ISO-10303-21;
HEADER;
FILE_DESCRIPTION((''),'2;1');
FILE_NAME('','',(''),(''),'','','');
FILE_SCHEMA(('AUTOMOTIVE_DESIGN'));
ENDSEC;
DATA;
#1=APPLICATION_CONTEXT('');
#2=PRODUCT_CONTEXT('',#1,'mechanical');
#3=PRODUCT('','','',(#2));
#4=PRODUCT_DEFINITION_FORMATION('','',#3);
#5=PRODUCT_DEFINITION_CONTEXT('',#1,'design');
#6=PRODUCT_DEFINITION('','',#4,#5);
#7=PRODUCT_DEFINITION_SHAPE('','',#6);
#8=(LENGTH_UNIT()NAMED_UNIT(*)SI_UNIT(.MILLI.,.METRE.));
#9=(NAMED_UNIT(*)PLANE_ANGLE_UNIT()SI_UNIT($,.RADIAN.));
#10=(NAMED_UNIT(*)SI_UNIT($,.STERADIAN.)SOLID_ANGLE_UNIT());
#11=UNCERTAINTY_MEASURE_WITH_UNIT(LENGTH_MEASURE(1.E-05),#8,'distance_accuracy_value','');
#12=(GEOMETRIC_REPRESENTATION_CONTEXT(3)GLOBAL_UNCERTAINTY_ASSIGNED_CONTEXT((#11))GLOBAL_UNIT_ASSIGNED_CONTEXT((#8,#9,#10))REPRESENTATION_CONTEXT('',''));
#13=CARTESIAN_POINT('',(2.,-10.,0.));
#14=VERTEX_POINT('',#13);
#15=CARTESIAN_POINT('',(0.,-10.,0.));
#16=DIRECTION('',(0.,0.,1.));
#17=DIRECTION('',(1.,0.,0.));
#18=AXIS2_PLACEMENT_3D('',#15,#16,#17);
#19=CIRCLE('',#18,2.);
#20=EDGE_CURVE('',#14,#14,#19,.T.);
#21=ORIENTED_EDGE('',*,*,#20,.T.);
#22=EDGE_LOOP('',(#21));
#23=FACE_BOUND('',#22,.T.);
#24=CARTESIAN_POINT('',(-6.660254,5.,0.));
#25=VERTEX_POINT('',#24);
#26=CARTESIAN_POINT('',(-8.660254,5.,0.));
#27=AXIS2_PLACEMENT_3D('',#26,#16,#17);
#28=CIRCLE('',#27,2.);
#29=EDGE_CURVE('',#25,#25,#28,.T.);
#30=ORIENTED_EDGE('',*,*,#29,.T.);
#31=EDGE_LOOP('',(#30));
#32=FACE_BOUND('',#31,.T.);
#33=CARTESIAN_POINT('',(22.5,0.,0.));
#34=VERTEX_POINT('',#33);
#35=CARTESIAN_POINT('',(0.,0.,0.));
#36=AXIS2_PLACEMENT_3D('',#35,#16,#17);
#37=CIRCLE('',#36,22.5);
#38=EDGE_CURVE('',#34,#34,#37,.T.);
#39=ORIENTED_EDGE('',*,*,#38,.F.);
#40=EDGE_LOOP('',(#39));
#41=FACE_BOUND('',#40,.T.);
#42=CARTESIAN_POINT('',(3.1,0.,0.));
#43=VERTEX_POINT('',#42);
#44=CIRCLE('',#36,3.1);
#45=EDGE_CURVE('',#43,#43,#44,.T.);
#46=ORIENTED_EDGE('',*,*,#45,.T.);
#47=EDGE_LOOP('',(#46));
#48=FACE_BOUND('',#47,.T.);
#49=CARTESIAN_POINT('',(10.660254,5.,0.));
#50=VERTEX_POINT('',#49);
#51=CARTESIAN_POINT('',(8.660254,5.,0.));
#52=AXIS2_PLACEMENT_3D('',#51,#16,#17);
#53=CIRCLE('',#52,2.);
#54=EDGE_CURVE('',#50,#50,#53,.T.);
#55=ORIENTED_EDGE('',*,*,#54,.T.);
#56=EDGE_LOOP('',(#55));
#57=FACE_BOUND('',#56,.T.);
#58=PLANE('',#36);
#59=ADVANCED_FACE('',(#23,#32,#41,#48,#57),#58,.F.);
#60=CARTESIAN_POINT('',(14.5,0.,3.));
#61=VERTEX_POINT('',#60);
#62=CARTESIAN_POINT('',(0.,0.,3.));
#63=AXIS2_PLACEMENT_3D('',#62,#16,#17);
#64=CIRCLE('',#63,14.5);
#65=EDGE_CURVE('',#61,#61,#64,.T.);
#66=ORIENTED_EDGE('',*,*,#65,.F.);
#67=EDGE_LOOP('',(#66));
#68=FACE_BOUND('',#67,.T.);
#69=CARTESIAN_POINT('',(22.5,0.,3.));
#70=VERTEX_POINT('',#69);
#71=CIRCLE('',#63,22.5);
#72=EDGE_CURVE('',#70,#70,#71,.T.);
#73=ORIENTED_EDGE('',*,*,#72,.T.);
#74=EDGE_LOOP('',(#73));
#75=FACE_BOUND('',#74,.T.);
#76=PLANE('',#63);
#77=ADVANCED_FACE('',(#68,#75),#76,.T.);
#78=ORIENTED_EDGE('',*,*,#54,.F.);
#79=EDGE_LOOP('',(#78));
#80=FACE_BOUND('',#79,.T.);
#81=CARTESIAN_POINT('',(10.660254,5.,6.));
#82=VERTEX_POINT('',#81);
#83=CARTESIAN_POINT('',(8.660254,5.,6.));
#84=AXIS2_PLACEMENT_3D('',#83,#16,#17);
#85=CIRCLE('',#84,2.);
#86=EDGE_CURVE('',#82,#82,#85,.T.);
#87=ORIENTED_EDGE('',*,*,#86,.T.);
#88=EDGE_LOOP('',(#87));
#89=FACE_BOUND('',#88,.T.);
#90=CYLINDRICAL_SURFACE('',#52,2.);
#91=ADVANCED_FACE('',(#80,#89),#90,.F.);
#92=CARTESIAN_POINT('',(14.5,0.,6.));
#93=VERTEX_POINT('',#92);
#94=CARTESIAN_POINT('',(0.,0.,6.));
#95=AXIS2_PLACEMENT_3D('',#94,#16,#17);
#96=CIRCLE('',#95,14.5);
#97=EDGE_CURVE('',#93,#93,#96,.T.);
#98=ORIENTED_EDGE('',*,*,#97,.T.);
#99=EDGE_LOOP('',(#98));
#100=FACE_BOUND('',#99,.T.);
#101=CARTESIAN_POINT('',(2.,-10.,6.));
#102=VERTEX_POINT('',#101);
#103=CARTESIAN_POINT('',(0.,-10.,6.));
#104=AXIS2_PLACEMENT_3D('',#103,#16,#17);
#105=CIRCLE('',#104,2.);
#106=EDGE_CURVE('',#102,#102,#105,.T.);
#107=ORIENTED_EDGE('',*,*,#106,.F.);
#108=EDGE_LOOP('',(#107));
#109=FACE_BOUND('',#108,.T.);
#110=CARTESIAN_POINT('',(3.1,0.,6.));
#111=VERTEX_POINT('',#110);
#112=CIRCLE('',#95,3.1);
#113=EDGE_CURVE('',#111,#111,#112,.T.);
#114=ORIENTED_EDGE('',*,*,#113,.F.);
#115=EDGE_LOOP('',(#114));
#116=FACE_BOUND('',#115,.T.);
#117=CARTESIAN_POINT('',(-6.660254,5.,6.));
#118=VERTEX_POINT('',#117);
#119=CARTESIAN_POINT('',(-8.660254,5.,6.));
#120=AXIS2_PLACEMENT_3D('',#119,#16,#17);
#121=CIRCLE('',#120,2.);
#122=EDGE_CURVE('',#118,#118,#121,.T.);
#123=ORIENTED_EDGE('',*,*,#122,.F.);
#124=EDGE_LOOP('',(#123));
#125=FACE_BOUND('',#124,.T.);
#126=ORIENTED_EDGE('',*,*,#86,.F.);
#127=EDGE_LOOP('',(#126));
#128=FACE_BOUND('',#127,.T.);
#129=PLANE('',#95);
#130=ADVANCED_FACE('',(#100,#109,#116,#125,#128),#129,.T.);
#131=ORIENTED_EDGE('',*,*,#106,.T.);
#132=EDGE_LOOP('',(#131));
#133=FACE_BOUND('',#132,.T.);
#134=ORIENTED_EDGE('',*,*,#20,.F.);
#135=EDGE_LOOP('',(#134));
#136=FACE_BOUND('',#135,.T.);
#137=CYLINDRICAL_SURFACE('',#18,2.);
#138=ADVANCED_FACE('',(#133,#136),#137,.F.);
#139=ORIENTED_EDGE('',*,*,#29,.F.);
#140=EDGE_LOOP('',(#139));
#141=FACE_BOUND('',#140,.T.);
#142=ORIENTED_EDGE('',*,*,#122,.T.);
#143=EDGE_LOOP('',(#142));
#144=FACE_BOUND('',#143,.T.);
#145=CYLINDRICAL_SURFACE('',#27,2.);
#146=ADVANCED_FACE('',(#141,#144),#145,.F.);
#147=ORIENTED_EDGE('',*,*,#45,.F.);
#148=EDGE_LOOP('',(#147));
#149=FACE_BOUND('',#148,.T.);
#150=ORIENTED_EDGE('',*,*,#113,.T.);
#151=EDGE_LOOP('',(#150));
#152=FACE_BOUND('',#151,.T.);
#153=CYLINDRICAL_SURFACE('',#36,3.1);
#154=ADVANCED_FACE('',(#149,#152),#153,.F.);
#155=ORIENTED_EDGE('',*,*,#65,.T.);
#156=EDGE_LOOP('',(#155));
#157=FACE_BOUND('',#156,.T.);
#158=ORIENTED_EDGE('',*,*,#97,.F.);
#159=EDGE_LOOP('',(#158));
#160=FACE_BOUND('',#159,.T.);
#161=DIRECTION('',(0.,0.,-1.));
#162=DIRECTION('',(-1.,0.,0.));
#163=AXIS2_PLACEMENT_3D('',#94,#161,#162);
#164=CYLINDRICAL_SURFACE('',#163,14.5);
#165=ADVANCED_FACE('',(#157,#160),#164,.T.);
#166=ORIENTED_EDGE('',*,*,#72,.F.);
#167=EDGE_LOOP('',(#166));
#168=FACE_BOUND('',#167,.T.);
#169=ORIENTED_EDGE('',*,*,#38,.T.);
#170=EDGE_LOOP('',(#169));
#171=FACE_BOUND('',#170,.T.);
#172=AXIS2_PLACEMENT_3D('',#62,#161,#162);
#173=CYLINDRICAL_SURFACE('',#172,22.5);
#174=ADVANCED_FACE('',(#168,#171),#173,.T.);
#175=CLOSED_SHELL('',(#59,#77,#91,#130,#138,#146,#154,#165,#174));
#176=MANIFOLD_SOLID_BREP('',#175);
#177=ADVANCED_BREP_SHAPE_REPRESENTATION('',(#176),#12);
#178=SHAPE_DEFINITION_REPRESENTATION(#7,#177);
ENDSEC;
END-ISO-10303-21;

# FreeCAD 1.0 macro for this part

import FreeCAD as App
import Part
import Sketcher

V = App.Vector

doc = App.newDocument("Part")
params = doc.addObject("Spreadsheet::Sheet", "Params")
for row, (alias, value) in enumerate([
    ("sketch1_diameter", "45 mm"),
    ("pad1_length", "3 mm"),
    ("sketch2_diameter", "29 mm"),
    ("pad2_length", "3 mm"),
    ("sketch3_diameter", "4 mm"),
    ("sketch3_diameter2", "6.2 mm"),
], start=1):
    params.set(f"A{row}", alias)
    params.set(f"B{row}", "=" + value)
    params.setAlias(f"B{row}", alias)

body = doc.addObject("PartDesign::Body", "Body")

# Sketch on XY plane
sketch1 = doc.addObject("Sketcher::SketchObject", "Sketch")
body.addObject(sketch1)
sketch1.AttachmentSupport = (doc.XY_Plane, [""])
sketch1.MapMode = "FlatFace"
sketch1.addGeometry(Part.Circle(V(0, 0, 0), V(0, 0, 1), 22), False)
sketch1.addConstraint([
    Sketcher.Constraint("Coincident", 0, 3, -1, 1),
    Sketcher.Constraint("Diameter", 0, 45.0),
])
sketch1.setExpression("Constraints[1]", "Params.sketch1_diameter")
pad1 = doc.addObject("PartDesign::Pad", "Pad")
body.addObject(pad1)
pad1.Profile = sketch1
pad1.setExpression("Length", "Params.pad1_length")

# Sketch on XY plane
sketch2 = doc.addObject("Sketcher::SketchObject", "Sketch001")
body.addObject(sketch2)
sketch2.AttachmentSupport = (doc.XY_Plane, [""])
sketch2.MapMode = "FlatFace"
sketch2.AttachmentOffset = App.Placement(V(0, 0, 3), App.Rotation())
sketch2.addGeometry(Part.Circle(V(0, 0, 0), V(0, 0, 1), 14), False)
sketch2.addConstraint([
    Sketcher.Constraint("Coincident", 0, 3, -1, 1),
    Sketcher.Constraint("Diameter", 0, 29.0),
])
sketch2.setExpression("Constraints[1]", "Params.sketch2_diameter")
pad2 = doc.addObject("PartDesign::Pad", "Pad001")
body.addObject(pad2)
pad2.Profile = sketch2
pad2.setExpression("Length", "Params.pad2_length")

# Sketch on XY plane
sketch3 = doc.addObject("Sketcher::SketchObject", "Sketch002")
body.addObject(sketch3)
sketch3.AttachmentSupport = (doc.XY_Plane, [""])
sketch3.MapMode = "FlatFace"
sketch3.AttachmentOffset = App.Placement(V(0, 0, 6), App.Rotation())
sketch3.addGeometry([
    Part.Circle(V(8.7, 5, 0), V(0, 0, 1), 2),
    Part.Circle(V(-8.7, 5, 0), V(0, 0, 1), 2),
    Part.Circle(V(0, -10, 0), V(0, 0, 1), 2),
    Part.Circle(V(0, 0, 0), V(0, 0, 1), 3.1),
], False)
sketch3.addConstraint([
    Sketcher.Constraint("Coincident", 3, 3, -1, 1),
    Sketcher.Constraint("Equal", 0, 1),
    Sketcher.Constraint("Equal", 1, 2),
    Sketcher.Constraint("Symmetric", 0, 3, 1, 3, -2),
    Sketcher.Constraint("PointOnObject", 2, 3, -2),
    Sketcher.Constraint("Diameter", 0, 4.0),
    Sketcher.Constraint("Diameter", 3, 6.2),
    Sketcher.Constraint("DistanceY", -1, 1, 0, 3, 5.0),
    Sketcher.Constraint("DistanceY", 2, 3, -1, 1, 10.0),
    Sketcher.Constraint("DistanceX", 1, 3, 0, 3, 17.320508),
])
sketch3.setExpression("Constraints[5]", "Params.sketch3_diameter")
sketch3.setExpression("Constraints[6]", "Params.sketch3_diameter2")
pocket1 = doc.addObject("PartDesign::Pocket", "Pocket")
body.addObject(pocket1)
pocket1.Profile = sketch3
pocket1.Type = "ThroughAll"

doc.recompute()
